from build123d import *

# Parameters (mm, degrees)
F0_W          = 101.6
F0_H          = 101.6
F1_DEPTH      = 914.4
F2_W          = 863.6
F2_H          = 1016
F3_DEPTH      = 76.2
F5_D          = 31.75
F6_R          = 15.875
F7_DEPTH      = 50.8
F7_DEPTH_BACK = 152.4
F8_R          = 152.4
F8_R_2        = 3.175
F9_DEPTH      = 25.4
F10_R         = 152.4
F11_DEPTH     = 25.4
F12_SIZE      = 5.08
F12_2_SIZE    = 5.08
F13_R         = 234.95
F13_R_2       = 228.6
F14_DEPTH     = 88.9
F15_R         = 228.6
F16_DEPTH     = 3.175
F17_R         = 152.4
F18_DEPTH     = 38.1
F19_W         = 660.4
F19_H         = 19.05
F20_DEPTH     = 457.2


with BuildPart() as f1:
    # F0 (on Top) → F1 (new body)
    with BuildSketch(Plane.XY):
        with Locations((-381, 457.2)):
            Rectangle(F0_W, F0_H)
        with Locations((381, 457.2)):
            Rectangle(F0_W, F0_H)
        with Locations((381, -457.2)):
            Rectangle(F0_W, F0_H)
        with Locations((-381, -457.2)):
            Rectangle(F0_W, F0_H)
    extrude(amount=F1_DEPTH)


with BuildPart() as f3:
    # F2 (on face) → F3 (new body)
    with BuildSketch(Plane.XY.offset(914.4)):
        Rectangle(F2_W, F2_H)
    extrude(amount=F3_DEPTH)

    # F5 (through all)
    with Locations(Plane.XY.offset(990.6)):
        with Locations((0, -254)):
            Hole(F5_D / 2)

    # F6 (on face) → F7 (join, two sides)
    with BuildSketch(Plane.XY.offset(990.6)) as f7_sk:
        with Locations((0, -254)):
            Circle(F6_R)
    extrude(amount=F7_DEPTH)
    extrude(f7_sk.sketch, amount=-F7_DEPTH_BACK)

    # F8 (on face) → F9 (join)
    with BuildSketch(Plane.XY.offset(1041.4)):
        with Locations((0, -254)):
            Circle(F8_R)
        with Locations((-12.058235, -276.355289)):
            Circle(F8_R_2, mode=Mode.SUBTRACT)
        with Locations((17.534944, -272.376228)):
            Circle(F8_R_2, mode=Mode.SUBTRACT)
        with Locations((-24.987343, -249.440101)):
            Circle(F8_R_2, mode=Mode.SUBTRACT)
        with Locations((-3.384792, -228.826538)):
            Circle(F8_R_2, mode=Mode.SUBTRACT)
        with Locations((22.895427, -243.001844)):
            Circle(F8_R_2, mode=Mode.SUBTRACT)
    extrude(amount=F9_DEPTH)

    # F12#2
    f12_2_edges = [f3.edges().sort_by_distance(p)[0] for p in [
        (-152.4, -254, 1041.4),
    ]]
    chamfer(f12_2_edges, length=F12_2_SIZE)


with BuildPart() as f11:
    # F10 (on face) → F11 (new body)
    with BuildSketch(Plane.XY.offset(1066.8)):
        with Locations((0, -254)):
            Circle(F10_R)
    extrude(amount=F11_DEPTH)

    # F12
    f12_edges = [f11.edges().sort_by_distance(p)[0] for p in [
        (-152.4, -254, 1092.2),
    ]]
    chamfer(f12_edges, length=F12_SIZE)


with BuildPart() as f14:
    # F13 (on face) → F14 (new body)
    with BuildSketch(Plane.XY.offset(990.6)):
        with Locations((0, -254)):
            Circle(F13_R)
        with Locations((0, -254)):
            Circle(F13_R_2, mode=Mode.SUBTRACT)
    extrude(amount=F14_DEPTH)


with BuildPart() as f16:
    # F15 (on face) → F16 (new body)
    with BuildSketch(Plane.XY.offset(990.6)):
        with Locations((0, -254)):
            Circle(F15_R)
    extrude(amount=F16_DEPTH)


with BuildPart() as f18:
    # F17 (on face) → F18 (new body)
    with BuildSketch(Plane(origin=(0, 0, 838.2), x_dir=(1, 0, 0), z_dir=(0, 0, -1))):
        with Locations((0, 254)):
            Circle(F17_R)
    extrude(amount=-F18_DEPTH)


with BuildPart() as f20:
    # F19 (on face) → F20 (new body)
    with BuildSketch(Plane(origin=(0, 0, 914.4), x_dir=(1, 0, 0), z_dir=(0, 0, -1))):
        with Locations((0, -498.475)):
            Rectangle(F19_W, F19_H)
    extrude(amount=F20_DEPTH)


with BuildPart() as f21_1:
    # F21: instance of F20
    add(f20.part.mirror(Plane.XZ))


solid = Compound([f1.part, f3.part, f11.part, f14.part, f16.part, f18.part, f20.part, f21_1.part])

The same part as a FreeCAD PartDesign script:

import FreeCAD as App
import Part
import Sketcher

V = App.Vector
Q = App.Units.Quantity


def edges_at(feature, points):
    """Names of the edges that pass closest to the given points."""
    edges = feature.Shape.Edges
    near = lambda p: min(range(len(edges)), key=lambda i: edges[i].distToShape(Part.Vertex(*p))[0])
    return sorted({f"Edge{near(p) + 1}" for p in points})

doc = App.newDocument("Part")
body = doc.addObject("PartDesign::Body", "Body")
body.AllowCompound = True

sketch1 = body.newObject("Sketcher::SketchObject", "Sketch")
sketch1.AttachmentSupport = (doc.getObject("XY_Plane"), [""])
sketch1.MapMode = "FlatFace"
sketch1.addGeometry(Part.LineSegment(V(-432, 508, 0), V(-432, 406, 0)), False)
sketch1.addGeometry(Part.LineSegment(V(-432, 406, 0), V(-330, 406, 0)), False)
sketch1.addGeometry(Part.LineSegment(V(-330, 406, 0), V(-330, 508, 0)), False)
sketch1.addGeometry(Part.LineSegment(V(-330, 508, 0), V(-432, 508, 0)), False)
sketch1.addGeometry(Part.LineSegment(V(330, 508, 0), V(330, 406, 0)), False)
sketch1.addGeometry(Part.LineSegment(V(330, 406, 0), V(432, 406, 0)), False)
sketch1.addGeometry(Part.LineSegment(V(432, 406, 0), V(432, 508, 0)), False)
sketch1.addGeometry(Part.LineSegment(V(432, 508, 0), V(330, 508, 0)), False)
sketch1.addGeometry(Part.LineSegment(V(330, -406, 0), V(330, -508, 0)), False)
sketch1.addGeometry(Part.LineSegment(V(330, -508, 0), V(432, -508, 0)), False)
sketch1.addGeometry(Part.LineSegment(V(432, -508, 0), V(432, -406, 0)), False)
sketch1.addGeometry(Part.LineSegment(V(432, -406, 0), V(330, -406, 0)), False)
sketch1.addGeometry(Part.LineSegment(V(-432, -406, 0), V(-432, -508, 0)), False)
sketch1.addGeometry(Part.LineSegment(V(-432, -508, 0), V(-330, -508, 0)), False)
sketch1.addGeometry(Part.LineSegment(V(-330, -508, 0), V(-330, -406, 0)), False)
sketch1.addGeometry(Part.LineSegment(V(-330, -406, 0), V(-432, -406, 0)), False)
sketch1.addConstraint(Sketcher.Constraint("Coincident", 0, 2, 1, 1))
sketch1.addConstraint(Sketcher.Constraint("Coincident", 1, 2, 2, 1))
sketch1.addConstraint(Sketcher.Constraint("Coincident", 2, 2, 3, 1))
sketch1.addConstraint(Sketcher.Constraint("Coincident", 3, 2, 0, 1))
sketch1.addConstraint(Sketcher.Constraint("Coincident", 4, 2, 5, 1))
sketch1.addConstraint(Sketcher.Constraint("Coincident", 5, 2, 6, 1))
sketch1.addConstraint(Sketcher.Constraint("Coincident", 6, 2, 7, 1))
sketch1.addConstraint(Sketcher.Constraint("Coincident", 7, 2, 4, 1))
sketch1.addConstraint(Sketcher.Constraint("Coincident", 8, 2, 9, 1))
sketch1.addConstraint(Sketcher.Constraint("Coincident", 9, 2, 10, 1))
sketch1.addConstraint(Sketcher.Constraint("Coincident", 10, 2, 11, 1))
sketch1.addConstraint(Sketcher.Constraint("Coincident", 11, 2, 8, 1))
sketch1.addConstraint(Sketcher.Constraint("Coincident", 12, 2, 13, 1))
sketch1.addConstraint(Sketcher.Constraint("Coincident", 13, 2, 14, 1))
sketch1.addConstraint(Sketcher.Constraint("Coincident", 14, 2, 15, 1))
sketch1.addConstraint(Sketcher.Constraint("Coincident", 15, 2, 12, 1))
sketch1.addConstraint(Sketcher.Constraint("Vertical", 0))
sketch1.addConstraint(Sketcher.Constraint("Horizontal", 1))
sketch1.addConstraint(Sketcher.Constraint("Vertical", 2))
sketch1.addConstraint(Sketcher.Constraint("Horizontal", 3))
sketch1.addConstraint(Sketcher.Constraint("Vertical", 4))
sketch1.addConstraint(Sketcher.Constraint("Horizontal", 5))
sketch1.addConstraint(Sketcher.Constraint("Vertical", 6))
sketch1.addConstraint(Sketcher.Constraint("Horizontal", 7))
sketch1.addConstraint(Sketcher.Constraint("Vertical", 8))
sketch1.addConstraint(Sketcher.Constraint("Horizontal", 9))
sketch1.addConstraint(Sketcher.Constraint("Vertical", 10))
sketch1.addConstraint(Sketcher.Constraint("Horizontal", 11))
sketch1.addConstraint(Sketcher.Constraint("Vertical", 12))
sketch1.addConstraint(Sketcher.Constraint("Horizontal", 13))
sketch1.addConstraint(Sketcher.Constraint("Vertical", 14))
sketch1.addConstraint(Sketcher.Constraint("Horizontal", 15))
sketch1.addConstraint(Sketcher.Constraint("Symmetric", 2, 2, 8, 2, -1, 1))
sketch1.addConstraint(Sketcher.Constraint("Symmetric", 0, 2, 10, 2, -1, 1))
sketch1.addConstraint(Sketcher.Constraint("Symmetric", 6, 2, 12, 2, -1, 1))
sketch1.addConstraint(Sketcher.Constraint("Symmetric", 4, 2, 14, 2, -1, 1))
sketch1.addConstraint(Sketcher.Constraint("Symmetric", 1, 2, 4, 2, -2))
sketch1.addConstraint(Sketcher.Constraint("Symmetric", 3, 2, 6, 2, -2))
sketch1.addConstraint(Sketcher.Constraint("Equal", 15, 0))
sketch1.addConstraint(Sketcher.Constraint("DistanceX", 1, 1, 1, 2, Q("4 in")))
sketch1.addConstraint(Sketcher.Constraint("DistanceX", 0, 2, -1, 1, Q("17 in")))
sketch1.addConstraint(Sketcher.Constraint("DistanceY", -1, 1, 0, 2, Q("16 in")))
pad1 = body.newObject("PartDesign::Pad", "Pad")
pad1.Profile = sketch1
pad1.Length = Q("36 in")
body2 = doc.addObject("PartDesign::Body", "Body001")

sketch2 = body2.newObject("Sketcher::SketchObject", "Sketch001")
sketch2.AttachmentSupport = (doc.getObject("XY_Plane001"), [""])
sketch2.MapMode = "FlatFace"
sketch2.AttachmentOffset = App.Placement(V(0, 0, 36 * 25.4), App.Rotation())
sketch2.addGeometry(Part.LineSegment(V(-432, 508, 0), V(-432, -508, 0)), False)
sketch2.addGeometry(Part.LineSegment(V(-432, -508, 0), V(432, -508, 0)), False)
sketch2.addGeometry(Part.LineSegment(V(432, -508, 0), V(432, 508, 0)), False)
sketch2.addGeometry(Part.LineSegment(V(432, 508, 0), V(-432, 508, 0)), False)
sketch2.addConstraint(Sketcher.Constraint("Coincident", 0, 2, 1, 1))
sketch2.addConstraint(Sketcher.Constraint("Coincident", 1, 2, 2, 1))
sketch2.addConstraint(Sketcher.Constraint("Coincident", 2, 2, 3, 1))
sketch2.addConstraint(Sketcher.Constraint("Coincident", 3, 2, 0, 1))
sketch2.addConstraint(Sketcher.Constraint("Vertical", 0))
sketch2.addConstraint(Sketcher.Constraint("Horizontal", 1))
sketch2.addConstraint(Sketcher.Constraint("Vertical", 2))
sketch2.addConstraint(Sketcher.Constraint("Horizontal", 3))
sketch2.addConstraint(Sketcher.Constraint("Symmetric", 0, 2, 2, 2, -1, 1))
sketch2.addConstraint(Sketcher.Constraint("DistanceX", 1, 1, 1, 2, Q("34 in")))
sketch2.addConstraint(Sketcher.Constraint("DistanceY", 0, 2, 0, 1, Q("40 in")))
pad2 = body2.newObject("PartDesign::Pad", "Pad001")
pad2.Profile = sketch2
pad2.Length = Q("3 in")

sketch3 = body2.newObject("Sketcher::SketchObject", "Sketch002")
sketch3.AttachmentSupport = (doc.getObject("XY_Plane001"), [""])
sketch3.MapMode = "FlatFace"
sketch3.AttachmentOffset = App.Placement(V(0, 0, 39 * 25.4), App.Rotation())
sketch3.addGeometry(Part.Circle(V(0, -254, 0), V(0, 0, 1), 16), False)
sketch3.addConstraint(Sketcher.Constraint("PointOnObject", 0, 3, -2))
sketch3.addConstraint(Sketcher.Constraint("Diameter", 0, Q("1.25 in")))
sketch3.addConstraint(Sketcher.Constraint("DistanceY", 0, 3, -1, 1, Q("10 in")))
doc.recompute()
hole = body2.newObject("PartDesign::Hole", "Hole")
hole.Profile = sketch3
hole.ThreadType = "None"
hole.Diameter = Q("1.25 in")
hole.DepthType = "ThroughAll"

sketch4 = body2.newObject("Sketcher::SketchObject", "Sketch003")
sketch4.AttachmentSupport = (doc.getObject("XY_Plane001"), [""])
sketch4.MapMode = "FlatFace"
sketch4.AttachmentOffset = App.Placement(V(0, 0, 39 * 25.4), App.Rotation())
sketch4.addGeometry(Part.Circle(V(0, -254, 0), V(0, 0, 1), 16), False)
sketch4.addConstraint(Sketcher.Constraint("PointOnObject", 0, 3, -2))
sketch4.addConstraint(Sketcher.Constraint("Diameter", 0, Q("1.25 in")))
sketch4.addConstraint(Sketcher.Constraint("DistanceY", 0, 3, -1, 1, Q("10 in")))
pad3 = body2.newObject("PartDesign::Pad", "Pad002")
pad3.Profile = sketch4
pad3.Type = "TwoLengths"
pad3.Length = Q("2 in")
pad3.Length2 = Q("6 in")

sketch5 = body2.newObject("Sketcher::SketchObject", "Sketch004")
sketch5.AttachmentSupport = (doc.getObject("XY_Plane001"), [""])
sketch5.MapMode = "FlatFace"
sketch5.AttachmentOffset = App.Placement(V(0, 0, 41 * 25.4), App.Rotation())
sketch5.addGeometry(Part.Circle(V(0, -254, 0), V(0, 0, 1), 152.4), False)
sketch5.addGeometry(Part.Circle(V(-12.1, -276.4, 0), V(0, 0, 1), 3.2), False)
sketch5.addGeometry(Part.Circle(V(17.5, -272.4, 0), V(0, 0, 1), 3.2), False)
sketch5.addGeometry(Part.Circle(V(-25, -249.4, 0), V(0, 0, 1), 3.2), False)
sketch5.addGeometry(Part.Circle(V(-3.4, -228.8, 0), V(0, 0, 1), 3.2), False)
sketch5.addGeometry(Part.Circle(V(22.9, -243, 0), V(0, 0, 1), 3.2), False)
sketch5.addConstraint(Sketcher.Constraint("Equal", 1, 2))
sketch5.addConstraint(Sketcher.Constraint("Equal", 2, 3))
sketch5.addConstraint(Sketcher.Constraint("Equal", 3, 4))
sketch5.addConstraint(Sketcher.Constraint("Equal", 4, 5))
sketch5.addConstraint(Sketcher.Constraint("PointOnObject", 0, 3, -2))
sketch5.addConstraint(Sketcher.Constraint("Diameter", 0, Q("12 in")))
sketch5.addConstraint(Sketcher.Constraint("Diameter", 1, Q("0.25 in")))
sketch5.addConstraint(Sketcher.Constraint("DistanceY", 0, 3, -1, 1, Q("10 in")))
sketch5.addConstraint(Sketcher.Constraint("DistanceY", 3, 3, -1, 1, Q("249.440101 mm")))
sketch5.addConstraint(Sketcher.Constraint("DistanceY", 1, 3, -1, 1, Q("276.355289 mm")))
sketch5.addConstraint(Sketcher.Constraint("DistanceY", 2, 3, -1, 1, Q("272.376228 mm")))
sketch5.addConstraint(Sketcher.Constraint("DistanceX", 4, 3, -1, 1, Q("3.384792 mm")))
sketch5.addConstraint(Sketcher.Constraint("DistanceY", 4, 3, -1, 1, Q("228.826538 mm")))
sketch5.addConstraint(Sketcher.Constraint("DistanceX", 1, 3, 2, 3, Q("29.593179 mm")))
sketch5.addConstraint(Sketcher.Constraint("DistanceX", 3, 3, 4, 3, Q("21.602551 mm")))
sketch5.addConstraint(Sketcher.Constraint("DistanceX", 4, 3, 5, 3, Q("26.280219 mm")))
sketch5.addConstraint(Sketcher.Constraint("DistanceX", 1, 3, -1, 1, Q("12.058235 mm")))
sketch5.addConstraint(Sketcher.Constraint("DistanceY", 5, 3, -1, 1, Q("243.001844 mm")))
pad4 = body2.newObject("PartDesign::Pad", "Pad003")
pad4.Profile = sketch5
pad4.Length = Q("1 in")
doc.recompute()

chamfer = body2.newObject("PartDesign::Chamfer", "Chamfer")
chamfer.Base = (pad4, edges_at(pad4, [(-152.4, -254, 1041.4)]))
chamfer.Size = Q("0.2 in")
body3 = doc.addObject("PartDesign::Body", "Body002")

sketch6 = body3.newObject("Sketcher::SketchObject", "Sketch005")
sketch6.AttachmentSupport = (doc.getObject("XY_Plane002"), [""])
sketch6.MapMode = "FlatFace"
sketch6.AttachmentOffset = App.Placement(V(0, 0, 42 * 25.4), App.Rotation())
sketch6.addGeometry(Part.Circle(V(0, -254, 0), V(0, 0, 1), 152), False)
sketch6.addConstraint(Sketcher.Constraint("PointOnObject", 0, 3, -2))
sketch6.addConstraint(Sketcher.Constraint("Diameter", 0, Q("12 in")))
sketch6.addConstraint(Sketcher.Constraint("DistanceY", 0, 3, -1, 1, Q("10 in")))
pad5 = body3.newObject("PartDesign::Pad", "Pad004")
pad5.Profile = sketch6
pad5.Length = Q("1 in")
doc.recompute()

chamfer2 = body3.newObject("PartDesign::Chamfer", "Chamfer001")
chamfer2.Base = (pad5, edges_at(pad5, [(-152.4, -254, 1092.2)]))
chamfer2.Size = Q("0.2 in")
body4 = doc.addObject("PartDesign::Body", "Body003")

sketch7 = body4.newObject("Sketcher::SketchObject", "Sketch006")
sketch7.AttachmentSupport = (doc.getObject("XY_Plane003"), [""])
sketch7.MapMode = "FlatFace"
sketch7.AttachmentOffset = App.Placement(V(0, 0, 39 * 25.4), App.Rotation())
sketch7.addGeometry(Part.Circle(V(0, -254, 0), V(0, 0, 1), 235), False)
sketch7.addGeometry(Part.Circle(V(0, -254, 0), V(0, 0, 1), 229), False)
sketch7.addConstraint(Sketcher.Constraint("Coincident", 1, 3, 0, 3))
sketch7.addConstraint(Sketcher.Constraint("PointOnObject", 0, 3, -2))
sketch7.addConstraint(Sketcher.Constraint("Diameter", 1, Q("18 in")))
sketch7.addConstraint(Sketcher.Constraint("Diameter", 0, Q("18.5 in")))
sketch7.addConstraint(Sketcher.Constraint("DistanceY", 0, 3, -1, 1, Q("10 in")))
pad6 = body4.newObject("PartDesign::Pad", "Pad005")
pad6.Profile = sketch7
pad6.Length = Q("3.5 in")
body5 = doc.addObject("PartDesign::Body", "Body004")

sketch8 = body5.newObject("Sketcher::SketchObject", "Sketch007")
sketch8.AttachmentSupport = (doc.getObject("XY_Plane004"), [""])
sketch8.MapMode = "FlatFace"
sketch8.AttachmentOffset = App.Placement(V(0, 0, 39 * 25.4), App.Rotation())
sketch8.addGeometry(Part.Circle(V(0, -254, 0), V(0, 0, 1), 229), False)
sketch8.addConstraint(Sketcher.Constraint("PointOnObject", 0, 3, -2))
sketch8.addConstraint(Sketcher.Constraint("Diameter", 0, Q("18 in")))
sketch8.addConstraint(Sketcher.Constraint("DistanceY", 0, 3, -1, 1, Q("10 in")))
pad7 = body5.newObject("PartDesign::Pad", "Pad006")
pad7.Profile = sketch8
pad7.Length = Q("0.125 in")
body6 = doc.addObject("PartDesign::Body", "Body005")

sketch9 = body6.newObject("Sketcher::SketchObject", "Sketch008")
sketch9.AttachmentSupport = (doc.getObject("XY_Plane005"), [""])
sketch9.MapMode = "FlatFace"
sketch9.AttachmentOffset = App.Placement(V(0, 0, 33 * 25.4), App.Rotation())
sketch9.addGeometry(Part.Circle(V(0, -254, 0), V(0, 0, 1), 152), False)
sketch9.addConstraint(Sketcher.Constraint("PointOnObject", 0, 3, -2))
sketch9.addConstraint(Sketcher.Constraint("Diameter", 0, Q("12 in")))
sketch9.addConstraint(Sketcher.Constraint("DistanceY", 0, 3, -1, 1, Q("10 in")))
pad8 = body6.newObject("PartDesign::Pad", "Pad007")
pad8.Profile = sketch9
pad8.Length = Q("1.5 in")
body7 = doc.addObject("PartDesign::Body", "Body006")

sketch10 = body7.newObject("Sketcher::SketchObject", "Sketch009")
sketch10.AttachmentSupport = (doc.getObject("XY_Plane006"), [""])
sketch10.MapMode = "FlatFace"
sketch10.AttachmentOffset = App.Placement(V(0, 0, 36 * 25.4), App.Rotation())
sketch10.addGeometry(Part.LineSegment(V(-330, 489, 0), V(-330, 508, 0)), False)
sketch10.addGeometry(Part.LineSegment(V(-330, 508, 0), V(330, 508, 0)), False)
sketch10.addGeometry(Part.LineSegment(V(330, 508, 0), V(330, 489, 0)), False)
sketch10.addGeometry(Part.LineSegment(V(330, 489, 0), V(-330, 489, 0)), False)
sketch10.addConstraint(Sketcher.Constraint("Coincident", 0, 2, 1, 1))
sketch10.addConstraint(Sketcher.Constraint("Coincident", 1, 2, 2, 1))
sketch10.addConstraint(Sketcher.Constraint("Coincident", 2, 2, 3, 1))
sketch10.addConstraint(Sketcher.Constraint("Coincident", 3, 2, 0, 1))
sketch10.addConstraint(Sketcher.Constraint("Vertical", 0))
sketch10.addConstraint(Sketcher.Constraint("Horizontal", 1))
sketch10.addConstraint(Sketcher.Constraint("Vertical", 2))
sketch10.addConstraint(Sketcher.Constraint("Horizontal", 3))
sketch10.addConstraint(Sketcher.Constraint("DistanceX", 1, 1, 1, 2, Q("26 in")))
sketch10.addConstraint(Sketcher.Constraint("DistanceX", 0, 2, -1, 1, Q("13 in")))
sketch10.addConstraint(Sketcher.Constraint("DistanceY", -1, 1, 0, 2, Q("20 in")))
sketch10.addConstraint(Sketcher.Constraint("DistanceY", 0, 1, 0, 2, Q("0.75 in")))
pad9 = body7.newObject("PartDesign::Pad", "Pad008")
pad9.Profile = sketch10
pad9.Length = Q("18 in")
pad9.Reversed = True
body8 = doc.addObject("PartDesign::Body", "Body007")
doc.recompute()

mirroring = doc.addObject("Part::Mirroring", "Mirroring")
mirroring.Source = body7
mirroring.Base = V(0, 0, 0)
mirroring.Normal = V(0, -1, 0)
body8.BaseFeature = mirroring
doc.recompute()
mirroring.Visibility = False

doc.recompute()
